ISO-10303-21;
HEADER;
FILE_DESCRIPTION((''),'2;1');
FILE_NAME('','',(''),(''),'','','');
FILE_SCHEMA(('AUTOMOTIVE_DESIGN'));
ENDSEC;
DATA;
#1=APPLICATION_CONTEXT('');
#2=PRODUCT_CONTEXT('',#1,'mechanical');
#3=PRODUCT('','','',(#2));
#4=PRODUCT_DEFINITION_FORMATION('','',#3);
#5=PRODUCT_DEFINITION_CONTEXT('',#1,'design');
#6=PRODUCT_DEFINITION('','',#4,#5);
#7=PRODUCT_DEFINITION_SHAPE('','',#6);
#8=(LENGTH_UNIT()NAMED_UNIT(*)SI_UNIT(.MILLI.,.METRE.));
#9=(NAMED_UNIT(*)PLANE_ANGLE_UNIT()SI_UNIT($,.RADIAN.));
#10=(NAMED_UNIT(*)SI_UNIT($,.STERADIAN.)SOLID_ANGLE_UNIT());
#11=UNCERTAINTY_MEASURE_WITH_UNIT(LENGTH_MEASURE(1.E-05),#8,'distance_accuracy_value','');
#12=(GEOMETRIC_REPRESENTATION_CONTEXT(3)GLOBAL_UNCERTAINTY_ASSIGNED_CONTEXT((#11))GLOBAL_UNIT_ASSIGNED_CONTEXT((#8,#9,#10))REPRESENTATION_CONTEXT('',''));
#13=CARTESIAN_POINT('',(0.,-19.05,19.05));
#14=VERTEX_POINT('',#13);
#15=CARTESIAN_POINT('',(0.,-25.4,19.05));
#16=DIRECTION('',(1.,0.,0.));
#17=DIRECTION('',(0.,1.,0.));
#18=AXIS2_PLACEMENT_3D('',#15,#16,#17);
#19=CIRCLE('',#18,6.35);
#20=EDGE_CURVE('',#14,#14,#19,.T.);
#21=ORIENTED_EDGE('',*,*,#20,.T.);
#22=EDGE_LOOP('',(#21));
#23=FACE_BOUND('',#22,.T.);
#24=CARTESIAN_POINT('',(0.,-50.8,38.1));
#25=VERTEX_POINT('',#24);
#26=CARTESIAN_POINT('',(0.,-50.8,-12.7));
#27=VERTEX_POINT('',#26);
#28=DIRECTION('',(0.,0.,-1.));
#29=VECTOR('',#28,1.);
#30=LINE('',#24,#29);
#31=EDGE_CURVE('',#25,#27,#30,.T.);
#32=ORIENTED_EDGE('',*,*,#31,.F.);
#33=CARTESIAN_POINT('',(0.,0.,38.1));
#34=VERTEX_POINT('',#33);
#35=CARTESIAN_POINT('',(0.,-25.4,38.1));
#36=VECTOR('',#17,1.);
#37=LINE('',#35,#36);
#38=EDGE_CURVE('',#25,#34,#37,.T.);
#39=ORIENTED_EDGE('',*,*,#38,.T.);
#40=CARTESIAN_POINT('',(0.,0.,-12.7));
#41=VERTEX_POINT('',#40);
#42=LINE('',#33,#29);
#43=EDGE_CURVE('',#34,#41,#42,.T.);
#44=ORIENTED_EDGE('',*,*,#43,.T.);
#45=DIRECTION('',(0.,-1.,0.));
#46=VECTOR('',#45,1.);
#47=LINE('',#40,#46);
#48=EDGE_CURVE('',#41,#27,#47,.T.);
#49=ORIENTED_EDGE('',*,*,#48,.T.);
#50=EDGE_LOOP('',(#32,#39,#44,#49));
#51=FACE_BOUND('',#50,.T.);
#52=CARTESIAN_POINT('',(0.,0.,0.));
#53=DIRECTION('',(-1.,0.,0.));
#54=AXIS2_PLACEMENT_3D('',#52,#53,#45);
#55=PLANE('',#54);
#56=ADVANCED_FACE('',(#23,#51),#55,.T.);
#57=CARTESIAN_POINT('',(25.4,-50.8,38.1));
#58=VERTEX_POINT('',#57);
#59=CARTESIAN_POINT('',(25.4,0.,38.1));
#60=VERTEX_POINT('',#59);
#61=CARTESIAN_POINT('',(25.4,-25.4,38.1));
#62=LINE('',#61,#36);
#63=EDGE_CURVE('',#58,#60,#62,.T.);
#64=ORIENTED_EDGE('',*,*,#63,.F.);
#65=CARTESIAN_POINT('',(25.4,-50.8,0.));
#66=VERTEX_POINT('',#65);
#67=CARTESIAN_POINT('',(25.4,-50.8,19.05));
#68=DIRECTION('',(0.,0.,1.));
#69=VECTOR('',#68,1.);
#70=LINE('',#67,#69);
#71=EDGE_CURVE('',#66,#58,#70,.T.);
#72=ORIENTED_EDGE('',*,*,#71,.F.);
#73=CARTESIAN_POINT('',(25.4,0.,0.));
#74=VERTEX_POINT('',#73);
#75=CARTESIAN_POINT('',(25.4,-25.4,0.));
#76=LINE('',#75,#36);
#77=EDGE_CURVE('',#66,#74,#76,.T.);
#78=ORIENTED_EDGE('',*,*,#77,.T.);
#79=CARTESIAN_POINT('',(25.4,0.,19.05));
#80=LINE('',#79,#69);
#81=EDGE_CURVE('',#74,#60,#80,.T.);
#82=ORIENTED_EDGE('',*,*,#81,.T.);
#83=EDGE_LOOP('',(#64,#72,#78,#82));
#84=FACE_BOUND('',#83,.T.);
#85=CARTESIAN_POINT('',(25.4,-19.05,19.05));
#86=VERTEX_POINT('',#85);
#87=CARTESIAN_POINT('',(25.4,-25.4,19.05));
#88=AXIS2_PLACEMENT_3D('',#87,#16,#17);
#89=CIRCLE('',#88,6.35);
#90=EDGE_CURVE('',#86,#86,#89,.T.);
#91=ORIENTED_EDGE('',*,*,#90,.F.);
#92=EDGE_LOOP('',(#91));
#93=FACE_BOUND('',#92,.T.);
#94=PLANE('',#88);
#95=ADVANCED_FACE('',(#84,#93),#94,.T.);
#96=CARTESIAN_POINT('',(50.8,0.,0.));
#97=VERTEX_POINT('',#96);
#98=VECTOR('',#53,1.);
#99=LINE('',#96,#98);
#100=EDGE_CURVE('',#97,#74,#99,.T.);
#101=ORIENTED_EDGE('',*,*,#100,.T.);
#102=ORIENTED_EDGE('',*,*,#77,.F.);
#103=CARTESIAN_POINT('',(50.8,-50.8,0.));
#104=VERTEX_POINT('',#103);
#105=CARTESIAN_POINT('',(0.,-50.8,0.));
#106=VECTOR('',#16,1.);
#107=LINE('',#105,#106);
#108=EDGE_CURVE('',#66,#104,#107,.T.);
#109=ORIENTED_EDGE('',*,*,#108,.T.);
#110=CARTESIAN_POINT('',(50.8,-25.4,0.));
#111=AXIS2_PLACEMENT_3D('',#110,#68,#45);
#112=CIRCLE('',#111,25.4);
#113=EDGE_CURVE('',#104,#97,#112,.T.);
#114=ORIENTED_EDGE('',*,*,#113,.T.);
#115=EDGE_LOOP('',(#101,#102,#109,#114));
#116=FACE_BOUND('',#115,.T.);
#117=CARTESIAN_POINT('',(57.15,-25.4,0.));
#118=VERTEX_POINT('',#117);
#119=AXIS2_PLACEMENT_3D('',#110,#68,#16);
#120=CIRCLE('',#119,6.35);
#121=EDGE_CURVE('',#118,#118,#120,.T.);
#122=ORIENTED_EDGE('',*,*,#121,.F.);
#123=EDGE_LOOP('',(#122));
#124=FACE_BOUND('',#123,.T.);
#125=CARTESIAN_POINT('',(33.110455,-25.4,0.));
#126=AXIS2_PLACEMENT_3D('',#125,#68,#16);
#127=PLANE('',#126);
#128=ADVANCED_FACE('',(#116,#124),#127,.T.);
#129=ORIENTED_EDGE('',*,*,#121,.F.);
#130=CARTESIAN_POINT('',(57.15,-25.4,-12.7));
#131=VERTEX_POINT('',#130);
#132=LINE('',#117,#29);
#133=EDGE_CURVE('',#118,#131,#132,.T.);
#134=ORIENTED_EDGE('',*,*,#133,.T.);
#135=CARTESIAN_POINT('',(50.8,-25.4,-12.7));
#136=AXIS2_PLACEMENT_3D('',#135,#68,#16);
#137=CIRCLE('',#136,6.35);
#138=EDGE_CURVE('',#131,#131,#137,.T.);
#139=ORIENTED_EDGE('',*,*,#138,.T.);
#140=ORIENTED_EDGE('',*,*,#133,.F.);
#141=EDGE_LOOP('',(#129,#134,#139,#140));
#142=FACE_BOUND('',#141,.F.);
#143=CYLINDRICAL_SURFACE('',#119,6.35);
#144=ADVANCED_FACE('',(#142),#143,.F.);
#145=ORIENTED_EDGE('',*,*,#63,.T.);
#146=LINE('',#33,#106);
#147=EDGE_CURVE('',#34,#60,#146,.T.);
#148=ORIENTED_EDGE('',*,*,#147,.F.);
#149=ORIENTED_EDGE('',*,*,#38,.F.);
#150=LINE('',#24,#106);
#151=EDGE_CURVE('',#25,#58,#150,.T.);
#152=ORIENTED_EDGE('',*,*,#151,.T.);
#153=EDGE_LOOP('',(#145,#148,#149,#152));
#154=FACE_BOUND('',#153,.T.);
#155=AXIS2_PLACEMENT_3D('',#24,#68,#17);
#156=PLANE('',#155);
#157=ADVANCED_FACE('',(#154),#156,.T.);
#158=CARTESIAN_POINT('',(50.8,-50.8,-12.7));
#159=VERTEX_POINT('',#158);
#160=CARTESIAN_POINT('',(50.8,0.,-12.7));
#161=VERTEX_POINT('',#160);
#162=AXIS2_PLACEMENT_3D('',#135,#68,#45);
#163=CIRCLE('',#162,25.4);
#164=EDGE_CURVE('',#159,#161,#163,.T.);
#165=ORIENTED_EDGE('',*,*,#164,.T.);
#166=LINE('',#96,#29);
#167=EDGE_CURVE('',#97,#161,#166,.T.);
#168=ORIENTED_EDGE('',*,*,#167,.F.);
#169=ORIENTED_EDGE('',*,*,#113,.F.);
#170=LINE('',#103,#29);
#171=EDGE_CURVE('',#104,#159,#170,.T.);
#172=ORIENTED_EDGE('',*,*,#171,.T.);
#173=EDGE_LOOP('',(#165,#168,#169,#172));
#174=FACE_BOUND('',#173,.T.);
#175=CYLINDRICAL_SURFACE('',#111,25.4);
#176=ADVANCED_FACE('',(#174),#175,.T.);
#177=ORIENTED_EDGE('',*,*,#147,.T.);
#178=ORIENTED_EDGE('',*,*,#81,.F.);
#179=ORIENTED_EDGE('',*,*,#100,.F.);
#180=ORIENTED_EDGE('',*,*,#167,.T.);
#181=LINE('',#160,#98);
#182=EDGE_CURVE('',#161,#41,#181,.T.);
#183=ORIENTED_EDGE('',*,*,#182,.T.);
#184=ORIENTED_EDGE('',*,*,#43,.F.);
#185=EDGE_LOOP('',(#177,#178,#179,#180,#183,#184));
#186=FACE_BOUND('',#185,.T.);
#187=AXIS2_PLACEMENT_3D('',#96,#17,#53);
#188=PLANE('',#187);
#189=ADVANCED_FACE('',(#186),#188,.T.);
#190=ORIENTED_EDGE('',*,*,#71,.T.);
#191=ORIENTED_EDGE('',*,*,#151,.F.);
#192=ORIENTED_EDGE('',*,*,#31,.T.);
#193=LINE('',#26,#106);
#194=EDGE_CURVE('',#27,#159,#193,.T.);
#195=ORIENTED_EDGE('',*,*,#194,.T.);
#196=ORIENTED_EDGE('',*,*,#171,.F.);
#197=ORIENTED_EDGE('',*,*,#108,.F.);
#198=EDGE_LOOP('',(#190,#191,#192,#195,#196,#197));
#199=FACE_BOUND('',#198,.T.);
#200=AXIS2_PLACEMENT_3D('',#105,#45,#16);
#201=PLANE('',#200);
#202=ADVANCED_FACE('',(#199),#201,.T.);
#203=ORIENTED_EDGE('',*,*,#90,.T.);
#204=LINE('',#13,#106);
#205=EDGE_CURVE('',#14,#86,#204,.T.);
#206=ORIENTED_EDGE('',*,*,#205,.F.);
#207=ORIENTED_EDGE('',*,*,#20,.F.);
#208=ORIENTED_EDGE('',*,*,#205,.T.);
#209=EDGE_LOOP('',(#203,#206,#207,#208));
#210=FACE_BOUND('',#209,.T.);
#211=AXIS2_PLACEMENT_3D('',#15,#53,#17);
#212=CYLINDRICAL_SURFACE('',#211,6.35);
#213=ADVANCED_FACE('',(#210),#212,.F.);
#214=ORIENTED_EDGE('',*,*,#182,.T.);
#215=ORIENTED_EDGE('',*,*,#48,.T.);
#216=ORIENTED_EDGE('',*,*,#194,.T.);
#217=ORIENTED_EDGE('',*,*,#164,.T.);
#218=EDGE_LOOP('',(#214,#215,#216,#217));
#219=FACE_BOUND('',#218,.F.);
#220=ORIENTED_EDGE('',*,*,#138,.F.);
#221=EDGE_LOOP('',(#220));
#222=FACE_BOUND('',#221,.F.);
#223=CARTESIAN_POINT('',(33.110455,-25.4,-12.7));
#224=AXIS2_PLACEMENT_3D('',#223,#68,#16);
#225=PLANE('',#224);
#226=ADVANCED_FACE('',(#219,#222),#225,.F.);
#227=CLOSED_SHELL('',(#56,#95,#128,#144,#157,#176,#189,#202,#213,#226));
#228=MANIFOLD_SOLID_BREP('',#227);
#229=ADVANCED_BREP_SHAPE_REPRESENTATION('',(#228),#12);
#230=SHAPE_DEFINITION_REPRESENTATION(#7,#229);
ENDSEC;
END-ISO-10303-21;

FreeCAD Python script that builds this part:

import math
import FreeCAD as App
import Part
import Sketcher
Q = App.Units.Quantity


def add_polygon(sketch, points):
    """Adds a closed chain of lines whose ends are joined by coincident constraints."""
    first, n = sketch.GeometryCount, len(points)
    for a, b in zip(points, points[1:] + points[:1]):
        sketch.addGeometry(Part.LineSegment(App.Vector(*a, 0), App.Vector(*b, 0)), False)
    for i in range(n):
        sketch.addConstraint(Sketcher.Constraint("Coincident", first + i, 2, first + (i + 1) % n, 1))

doc = App.newDocument("Part")
body = doc.addObject("PartDesign::Body", "Body")

sketch1 = body.newObject("Sketcher::SketchObject", "Sketch")
sketch1.AttachmentSupport = (doc.getObject("YZ_Plane"), [""])
sketch1.MapMode = "FlatFace"
add_polygon(sketch1, [(-51, 38), (-51, 0), (0, 0), (0, 38)])
sketch1.addGeometry(Part.Circle(App.Vector(-25, 19, 0), App.Vector(0, 0, 1), 6), False)
sketch1.addConstraint([
    Sketcher.Constraint("Vertical", 0),
    Sketcher.Constraint("Horizontal", 1),
    Sketcher.Constraint("Vertical", 2),
    Sketcher.Constraint("Horizontal", 3),
    Sketcher.Constraint("Coincident", 1, 2, -1, 1),
    Sketcher.Constraint("Diameter", 4, Q("0.5 in")),
    Sketcher.Constraint("DistanceX", 1, 1, 1, 2, Q("2 in")),
    Sketcher.Constraint("DistanceY", 0, 2, 0, 1, Q("1.5 in")),
    Sketcher.Constraint("DistanceX", 4, 3, -1, 1, Q("1 in")),
    Sketcher.Constraint("DistanceY", -1, 1, 4, 3, Q("0.75 in")),
])
pad1 = body.newObject("PartDesign::Pad", "Pad")
pad1.Profile = sketch1
pad1.Length = Q("1 in")

sketch2 = body.newObject("Sketcher::SketchObject", "Sketch001")
sketch2.AttachmentSupport = (doc.getObject("XY_Plane"), [""])
sketch2.MapMode = "FlatFace"
sketch2.addGeometry([
    Part.LineSegment(App.Vector(0, -51, 0), App.Vector(51, -51, 0)),
    Part.ArcOfCircle(Part.Circle(App.Vector(51, -25, 0), App.Vector(0, 0, 1), 25), math.radians(-90), math.radians(90)),
    Part.LineSegment(App.Vector(51, 0, 0), App.Vector(0, 0, 0)),
    Part.LineSegment(App.Vector(0, 0, 0), App.Vector(0, -51, 0)),
    Part.Circle(App.Vector(51, -25, 0), App.Vector(0, 0, 1), 6),
], False)
sketch2.addConstraint([
    Sketcher.Constraint("Tangent", 0, 2, 1, 1),
    Sketcher.Constraint("Tangent", 1, 2, 2, 1),
    Sketcher.Constraint("Coincident", 2, 2, 3, 1),
    Sketcher.Constraint("Coincident", 3, 2, 0, 1),
    Sketcher.Constraint("Horizontal", 0),
    Sketcher.Constraint("Horizontal", 2),
    Sketcher.Constraint("Vertical", 3),
    Sketcher.Constraint("Coincident", 2, 2, -1, 1),
    Sketcher.Constraint("Coincident", 4, 3, 1, 3),
    Sketcher.Constraint("Equal", 2, 3),
    Sketcher.Constraint("Radius", 1, Q("1 in")),
    Sketcher.Constraint("Diameter", 4, Q("0.5 in")),
])
pad2 = body.newObject("PartDesign::Pad", "Pad001")
pad2.Profile = sketch2
pad2.Length = Q("0.5 in")
pad2.Reversed = True

doc.recompute()
